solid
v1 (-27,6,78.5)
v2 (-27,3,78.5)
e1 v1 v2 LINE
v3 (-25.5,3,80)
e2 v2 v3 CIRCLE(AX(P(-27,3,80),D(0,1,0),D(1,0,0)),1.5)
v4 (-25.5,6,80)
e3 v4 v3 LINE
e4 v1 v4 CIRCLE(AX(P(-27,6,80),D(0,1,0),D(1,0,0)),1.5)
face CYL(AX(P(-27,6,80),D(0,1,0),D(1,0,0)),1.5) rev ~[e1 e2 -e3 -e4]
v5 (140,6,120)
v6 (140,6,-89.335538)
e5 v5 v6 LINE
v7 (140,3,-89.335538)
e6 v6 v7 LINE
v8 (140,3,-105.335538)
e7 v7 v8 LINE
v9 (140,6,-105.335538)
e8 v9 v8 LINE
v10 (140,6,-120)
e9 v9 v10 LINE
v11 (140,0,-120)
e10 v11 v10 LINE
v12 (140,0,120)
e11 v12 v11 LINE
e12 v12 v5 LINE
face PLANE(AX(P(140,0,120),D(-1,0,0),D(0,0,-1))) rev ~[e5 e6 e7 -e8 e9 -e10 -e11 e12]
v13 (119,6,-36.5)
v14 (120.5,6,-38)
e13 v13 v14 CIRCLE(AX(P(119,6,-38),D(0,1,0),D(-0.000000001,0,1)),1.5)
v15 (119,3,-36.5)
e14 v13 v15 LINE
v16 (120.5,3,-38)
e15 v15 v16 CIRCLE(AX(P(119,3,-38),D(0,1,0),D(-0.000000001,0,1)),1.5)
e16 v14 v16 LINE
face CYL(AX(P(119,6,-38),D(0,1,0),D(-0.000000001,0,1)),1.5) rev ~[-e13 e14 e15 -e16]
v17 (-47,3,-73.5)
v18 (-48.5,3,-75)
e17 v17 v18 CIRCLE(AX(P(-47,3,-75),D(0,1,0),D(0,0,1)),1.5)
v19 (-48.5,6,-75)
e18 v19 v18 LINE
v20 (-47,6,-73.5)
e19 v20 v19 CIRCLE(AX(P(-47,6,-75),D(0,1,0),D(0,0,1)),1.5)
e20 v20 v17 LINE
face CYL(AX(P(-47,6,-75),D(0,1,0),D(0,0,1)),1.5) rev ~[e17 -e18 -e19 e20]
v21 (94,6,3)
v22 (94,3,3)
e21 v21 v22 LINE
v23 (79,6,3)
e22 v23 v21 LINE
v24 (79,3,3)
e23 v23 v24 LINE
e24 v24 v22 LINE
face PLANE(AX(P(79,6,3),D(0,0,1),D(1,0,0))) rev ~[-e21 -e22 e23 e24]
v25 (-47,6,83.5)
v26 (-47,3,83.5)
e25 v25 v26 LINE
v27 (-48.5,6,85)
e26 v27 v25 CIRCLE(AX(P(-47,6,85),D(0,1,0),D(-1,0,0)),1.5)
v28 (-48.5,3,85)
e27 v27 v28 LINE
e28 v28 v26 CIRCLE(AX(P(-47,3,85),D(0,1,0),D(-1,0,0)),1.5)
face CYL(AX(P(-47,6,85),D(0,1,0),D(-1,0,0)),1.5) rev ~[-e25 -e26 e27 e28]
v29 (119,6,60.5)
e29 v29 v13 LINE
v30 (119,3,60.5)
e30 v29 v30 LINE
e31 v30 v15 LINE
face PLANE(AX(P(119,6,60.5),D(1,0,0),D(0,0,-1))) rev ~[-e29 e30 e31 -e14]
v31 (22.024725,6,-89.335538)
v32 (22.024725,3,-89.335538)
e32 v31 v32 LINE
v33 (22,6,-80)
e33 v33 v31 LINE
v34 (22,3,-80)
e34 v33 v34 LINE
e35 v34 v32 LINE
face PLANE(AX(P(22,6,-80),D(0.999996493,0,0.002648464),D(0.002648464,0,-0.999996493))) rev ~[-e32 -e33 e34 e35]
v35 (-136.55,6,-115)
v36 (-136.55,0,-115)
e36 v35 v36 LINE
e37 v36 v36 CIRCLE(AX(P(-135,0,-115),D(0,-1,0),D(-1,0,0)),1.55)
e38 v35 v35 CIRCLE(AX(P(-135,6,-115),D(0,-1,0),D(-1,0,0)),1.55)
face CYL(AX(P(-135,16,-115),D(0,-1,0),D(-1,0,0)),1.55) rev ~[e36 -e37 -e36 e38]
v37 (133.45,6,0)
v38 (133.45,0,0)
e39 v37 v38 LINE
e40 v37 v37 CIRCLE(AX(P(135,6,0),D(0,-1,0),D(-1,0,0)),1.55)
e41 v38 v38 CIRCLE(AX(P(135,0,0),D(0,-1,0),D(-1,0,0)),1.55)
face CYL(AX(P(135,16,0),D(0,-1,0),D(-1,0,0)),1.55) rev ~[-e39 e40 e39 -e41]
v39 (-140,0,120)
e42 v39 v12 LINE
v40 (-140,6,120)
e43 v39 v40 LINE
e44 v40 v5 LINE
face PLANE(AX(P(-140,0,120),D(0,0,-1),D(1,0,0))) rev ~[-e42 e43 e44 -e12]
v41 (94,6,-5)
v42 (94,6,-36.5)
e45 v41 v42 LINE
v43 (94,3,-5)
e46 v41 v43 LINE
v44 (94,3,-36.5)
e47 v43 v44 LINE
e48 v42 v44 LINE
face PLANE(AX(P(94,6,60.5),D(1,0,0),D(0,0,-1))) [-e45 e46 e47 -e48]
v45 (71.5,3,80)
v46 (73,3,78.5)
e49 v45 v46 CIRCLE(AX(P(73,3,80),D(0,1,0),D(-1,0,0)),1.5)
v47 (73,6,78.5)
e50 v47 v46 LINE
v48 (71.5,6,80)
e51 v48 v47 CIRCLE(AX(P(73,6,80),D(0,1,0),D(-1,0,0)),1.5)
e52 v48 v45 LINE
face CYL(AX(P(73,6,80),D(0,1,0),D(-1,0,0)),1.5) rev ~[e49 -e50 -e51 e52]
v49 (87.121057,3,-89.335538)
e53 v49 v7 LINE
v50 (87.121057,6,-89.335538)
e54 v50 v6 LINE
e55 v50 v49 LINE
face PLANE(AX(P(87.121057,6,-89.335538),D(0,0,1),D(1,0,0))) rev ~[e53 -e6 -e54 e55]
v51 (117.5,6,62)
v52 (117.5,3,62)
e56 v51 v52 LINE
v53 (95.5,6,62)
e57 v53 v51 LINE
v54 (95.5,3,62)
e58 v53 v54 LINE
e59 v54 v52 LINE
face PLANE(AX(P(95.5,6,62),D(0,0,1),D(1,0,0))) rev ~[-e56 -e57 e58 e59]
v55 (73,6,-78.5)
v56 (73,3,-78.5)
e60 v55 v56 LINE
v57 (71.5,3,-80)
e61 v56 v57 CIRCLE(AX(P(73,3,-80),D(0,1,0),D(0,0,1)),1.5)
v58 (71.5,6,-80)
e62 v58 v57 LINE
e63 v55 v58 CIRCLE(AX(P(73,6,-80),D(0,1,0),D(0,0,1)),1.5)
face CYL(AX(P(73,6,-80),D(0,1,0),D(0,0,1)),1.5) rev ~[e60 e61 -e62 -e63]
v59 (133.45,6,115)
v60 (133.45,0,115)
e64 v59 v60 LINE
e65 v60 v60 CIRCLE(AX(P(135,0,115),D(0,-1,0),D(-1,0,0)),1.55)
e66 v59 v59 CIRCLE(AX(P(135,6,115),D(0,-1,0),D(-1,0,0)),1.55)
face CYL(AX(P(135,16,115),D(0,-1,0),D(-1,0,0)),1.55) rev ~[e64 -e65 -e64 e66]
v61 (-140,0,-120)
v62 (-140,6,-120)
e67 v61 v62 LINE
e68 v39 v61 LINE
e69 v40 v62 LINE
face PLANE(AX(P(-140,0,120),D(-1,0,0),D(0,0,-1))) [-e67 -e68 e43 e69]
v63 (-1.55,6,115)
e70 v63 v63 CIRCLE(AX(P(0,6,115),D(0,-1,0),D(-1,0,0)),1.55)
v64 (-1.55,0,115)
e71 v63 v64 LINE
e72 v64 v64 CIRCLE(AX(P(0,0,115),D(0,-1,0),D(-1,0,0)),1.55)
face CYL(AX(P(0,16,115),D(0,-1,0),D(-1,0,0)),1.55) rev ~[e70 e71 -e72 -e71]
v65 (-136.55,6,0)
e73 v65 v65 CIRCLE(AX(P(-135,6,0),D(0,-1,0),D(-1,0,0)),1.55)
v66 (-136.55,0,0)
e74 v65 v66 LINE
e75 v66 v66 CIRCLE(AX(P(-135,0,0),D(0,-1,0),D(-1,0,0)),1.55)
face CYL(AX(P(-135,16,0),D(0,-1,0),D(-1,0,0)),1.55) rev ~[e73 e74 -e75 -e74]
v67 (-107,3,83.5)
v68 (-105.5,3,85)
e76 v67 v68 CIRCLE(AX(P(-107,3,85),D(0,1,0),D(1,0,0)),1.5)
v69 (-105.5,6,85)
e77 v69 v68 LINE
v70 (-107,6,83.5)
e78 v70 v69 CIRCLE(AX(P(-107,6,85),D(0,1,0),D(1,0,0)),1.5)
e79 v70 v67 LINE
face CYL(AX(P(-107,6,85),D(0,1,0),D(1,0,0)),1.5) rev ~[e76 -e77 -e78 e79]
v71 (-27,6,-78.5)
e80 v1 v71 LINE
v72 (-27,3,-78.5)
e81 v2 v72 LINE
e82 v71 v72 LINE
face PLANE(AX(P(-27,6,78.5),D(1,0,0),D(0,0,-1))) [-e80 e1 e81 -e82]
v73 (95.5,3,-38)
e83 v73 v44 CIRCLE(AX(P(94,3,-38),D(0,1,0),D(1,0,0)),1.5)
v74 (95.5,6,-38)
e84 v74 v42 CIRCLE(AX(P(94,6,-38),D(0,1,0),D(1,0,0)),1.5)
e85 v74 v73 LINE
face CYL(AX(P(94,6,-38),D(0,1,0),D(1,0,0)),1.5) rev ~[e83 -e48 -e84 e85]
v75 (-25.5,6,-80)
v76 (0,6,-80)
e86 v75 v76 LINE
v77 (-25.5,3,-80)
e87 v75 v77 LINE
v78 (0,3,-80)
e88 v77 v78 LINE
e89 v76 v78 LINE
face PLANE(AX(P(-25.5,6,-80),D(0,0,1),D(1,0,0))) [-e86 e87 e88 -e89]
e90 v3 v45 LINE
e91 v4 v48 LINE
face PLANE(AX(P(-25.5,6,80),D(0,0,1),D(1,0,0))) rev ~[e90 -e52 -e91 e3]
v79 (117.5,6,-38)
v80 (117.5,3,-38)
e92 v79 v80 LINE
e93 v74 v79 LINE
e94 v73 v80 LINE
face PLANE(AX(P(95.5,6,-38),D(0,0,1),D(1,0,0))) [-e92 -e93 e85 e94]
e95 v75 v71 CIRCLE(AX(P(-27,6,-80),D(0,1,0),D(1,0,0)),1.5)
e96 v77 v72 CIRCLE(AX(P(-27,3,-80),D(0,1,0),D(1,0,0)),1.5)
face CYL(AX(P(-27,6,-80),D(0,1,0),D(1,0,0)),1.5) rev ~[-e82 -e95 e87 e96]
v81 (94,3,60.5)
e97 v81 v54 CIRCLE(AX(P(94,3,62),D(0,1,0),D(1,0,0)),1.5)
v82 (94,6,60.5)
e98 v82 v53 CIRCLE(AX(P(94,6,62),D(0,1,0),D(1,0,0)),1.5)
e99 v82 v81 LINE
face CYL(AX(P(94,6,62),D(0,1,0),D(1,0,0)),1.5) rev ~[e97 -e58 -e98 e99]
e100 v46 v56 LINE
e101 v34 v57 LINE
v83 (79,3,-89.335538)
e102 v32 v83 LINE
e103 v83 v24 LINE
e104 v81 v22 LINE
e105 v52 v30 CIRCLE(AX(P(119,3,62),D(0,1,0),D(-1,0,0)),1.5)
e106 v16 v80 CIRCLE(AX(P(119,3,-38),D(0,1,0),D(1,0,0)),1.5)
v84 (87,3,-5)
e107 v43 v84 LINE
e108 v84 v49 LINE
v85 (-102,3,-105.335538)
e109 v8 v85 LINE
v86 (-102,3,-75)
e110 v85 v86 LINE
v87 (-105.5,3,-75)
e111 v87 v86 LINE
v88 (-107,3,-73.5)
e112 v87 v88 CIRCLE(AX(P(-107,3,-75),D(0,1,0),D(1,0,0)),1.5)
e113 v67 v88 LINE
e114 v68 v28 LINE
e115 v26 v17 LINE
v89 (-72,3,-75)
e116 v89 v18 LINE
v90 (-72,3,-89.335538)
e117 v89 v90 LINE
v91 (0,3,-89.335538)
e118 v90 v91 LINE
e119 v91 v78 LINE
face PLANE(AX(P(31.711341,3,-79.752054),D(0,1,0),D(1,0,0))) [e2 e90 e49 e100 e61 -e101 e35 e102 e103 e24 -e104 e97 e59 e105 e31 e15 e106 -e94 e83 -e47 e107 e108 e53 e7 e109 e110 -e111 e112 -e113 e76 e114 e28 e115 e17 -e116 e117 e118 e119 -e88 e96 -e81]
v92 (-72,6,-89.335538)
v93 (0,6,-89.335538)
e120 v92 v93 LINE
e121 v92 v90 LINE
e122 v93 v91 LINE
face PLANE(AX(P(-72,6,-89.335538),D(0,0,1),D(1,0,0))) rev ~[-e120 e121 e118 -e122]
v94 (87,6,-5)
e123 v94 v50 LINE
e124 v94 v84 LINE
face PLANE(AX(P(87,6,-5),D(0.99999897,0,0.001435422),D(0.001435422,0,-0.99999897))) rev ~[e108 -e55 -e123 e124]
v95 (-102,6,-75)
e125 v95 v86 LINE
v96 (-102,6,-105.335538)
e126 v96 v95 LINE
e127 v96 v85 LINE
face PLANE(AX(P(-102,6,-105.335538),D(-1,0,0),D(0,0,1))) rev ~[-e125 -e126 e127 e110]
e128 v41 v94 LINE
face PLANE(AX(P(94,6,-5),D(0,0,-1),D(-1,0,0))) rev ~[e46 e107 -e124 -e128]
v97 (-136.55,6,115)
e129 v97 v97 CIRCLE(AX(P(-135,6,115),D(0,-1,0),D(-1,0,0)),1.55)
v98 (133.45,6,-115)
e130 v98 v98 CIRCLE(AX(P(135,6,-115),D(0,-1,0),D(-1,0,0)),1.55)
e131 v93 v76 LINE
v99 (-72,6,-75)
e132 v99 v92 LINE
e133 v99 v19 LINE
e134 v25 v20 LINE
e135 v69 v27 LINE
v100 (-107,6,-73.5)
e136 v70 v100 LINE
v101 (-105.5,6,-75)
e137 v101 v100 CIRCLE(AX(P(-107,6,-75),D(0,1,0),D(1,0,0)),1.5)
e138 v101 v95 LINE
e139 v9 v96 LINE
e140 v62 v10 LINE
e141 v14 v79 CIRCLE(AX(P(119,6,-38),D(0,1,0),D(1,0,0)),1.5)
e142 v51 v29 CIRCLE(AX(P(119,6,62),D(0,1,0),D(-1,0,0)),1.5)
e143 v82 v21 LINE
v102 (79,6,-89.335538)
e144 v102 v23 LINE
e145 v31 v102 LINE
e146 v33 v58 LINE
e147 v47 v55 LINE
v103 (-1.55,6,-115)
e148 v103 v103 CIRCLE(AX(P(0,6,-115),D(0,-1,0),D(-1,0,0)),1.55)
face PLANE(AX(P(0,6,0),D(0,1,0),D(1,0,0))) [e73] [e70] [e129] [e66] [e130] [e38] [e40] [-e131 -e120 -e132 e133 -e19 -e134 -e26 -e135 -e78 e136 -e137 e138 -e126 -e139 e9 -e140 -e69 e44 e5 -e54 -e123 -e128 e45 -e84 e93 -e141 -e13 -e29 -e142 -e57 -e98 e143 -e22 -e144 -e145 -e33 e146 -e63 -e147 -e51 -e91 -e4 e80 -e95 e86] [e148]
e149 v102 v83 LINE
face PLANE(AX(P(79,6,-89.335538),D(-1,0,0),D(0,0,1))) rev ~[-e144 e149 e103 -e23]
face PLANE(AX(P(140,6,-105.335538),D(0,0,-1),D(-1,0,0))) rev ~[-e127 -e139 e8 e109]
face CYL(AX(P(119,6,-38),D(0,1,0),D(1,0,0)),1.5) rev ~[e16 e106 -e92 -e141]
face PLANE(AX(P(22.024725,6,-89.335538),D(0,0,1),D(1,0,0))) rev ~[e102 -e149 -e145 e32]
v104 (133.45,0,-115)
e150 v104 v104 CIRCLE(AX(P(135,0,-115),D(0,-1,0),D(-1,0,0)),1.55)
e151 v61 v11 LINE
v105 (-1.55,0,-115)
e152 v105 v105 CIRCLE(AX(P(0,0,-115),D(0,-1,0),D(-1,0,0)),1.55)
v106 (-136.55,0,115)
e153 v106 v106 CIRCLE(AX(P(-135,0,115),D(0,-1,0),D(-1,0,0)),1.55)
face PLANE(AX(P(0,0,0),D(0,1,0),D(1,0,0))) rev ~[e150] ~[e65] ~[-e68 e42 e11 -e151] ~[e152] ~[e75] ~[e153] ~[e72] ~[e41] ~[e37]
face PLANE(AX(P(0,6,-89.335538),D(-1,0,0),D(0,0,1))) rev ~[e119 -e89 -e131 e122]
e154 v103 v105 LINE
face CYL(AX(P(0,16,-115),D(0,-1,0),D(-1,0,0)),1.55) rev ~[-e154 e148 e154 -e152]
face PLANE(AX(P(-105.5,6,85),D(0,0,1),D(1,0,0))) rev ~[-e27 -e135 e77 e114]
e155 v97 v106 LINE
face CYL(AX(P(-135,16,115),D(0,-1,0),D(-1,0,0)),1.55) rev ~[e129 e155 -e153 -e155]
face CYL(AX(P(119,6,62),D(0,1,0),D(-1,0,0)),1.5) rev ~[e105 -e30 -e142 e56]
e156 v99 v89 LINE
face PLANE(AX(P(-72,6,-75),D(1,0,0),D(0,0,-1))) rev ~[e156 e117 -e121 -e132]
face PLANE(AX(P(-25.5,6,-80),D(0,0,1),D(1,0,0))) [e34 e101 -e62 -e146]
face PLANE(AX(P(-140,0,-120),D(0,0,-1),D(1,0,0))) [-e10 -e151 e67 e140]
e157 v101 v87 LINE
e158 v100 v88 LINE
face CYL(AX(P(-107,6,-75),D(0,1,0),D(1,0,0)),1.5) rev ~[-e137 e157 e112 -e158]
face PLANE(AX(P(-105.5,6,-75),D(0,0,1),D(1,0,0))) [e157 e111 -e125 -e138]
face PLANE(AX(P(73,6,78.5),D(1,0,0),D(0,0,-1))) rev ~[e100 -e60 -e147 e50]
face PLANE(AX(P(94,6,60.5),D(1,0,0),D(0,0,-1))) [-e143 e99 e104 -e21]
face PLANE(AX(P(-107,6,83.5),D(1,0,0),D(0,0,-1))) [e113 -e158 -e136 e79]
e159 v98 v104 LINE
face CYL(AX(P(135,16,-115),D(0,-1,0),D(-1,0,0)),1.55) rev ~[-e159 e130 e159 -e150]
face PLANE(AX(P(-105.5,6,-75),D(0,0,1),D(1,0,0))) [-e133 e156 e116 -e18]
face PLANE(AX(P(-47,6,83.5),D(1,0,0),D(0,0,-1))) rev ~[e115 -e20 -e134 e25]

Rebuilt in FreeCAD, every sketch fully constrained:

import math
import FreeCAD as App
import Part
import Sketcher

V = App.Vector
Q = App.Units.Quantity


def add_polygon(sketch, points):
    """Adds a closed chain of lines whose ends are joined by coincident constraints."""
    first, n = sketch.GeometryCount, len(points)
    for a, b in zip(points, points[1:] + points[:1]):
        sketch.addGeometry(Part.LineSegment(App.Vector(*a, 0), App.Vector(*b, 0)), False)
    for i in range(n):
        sketch.addConstraint(Sketcher.Constraint("Coincident", first + i, 2, first + (i + 1) % n, 1))

doc = App.newDocument("Part")
body = doc.addObject("PartDesign::Body", "Body")

sketch1 = doc.addObject("Sketcher::SketchObject", "Sketch")
body.addObject(sketch1)
sketch1.AttachmentSupport = (doc.XZ_Plane, [""])
sketch1.MapMode = "FlatFace"
add_polygon(sketch1, [(-140, -120), (-140, 120), (140, 120), (140, -120)])
sketch1.addConstraint(Sketcher.Constraint("Vertical", 0))
sketch1.addConstraint(Sketcher.Constraint("Horizontal", 1))
sketch1.addConstraint(Sketcher.Constraint("Vertical", 2))
sketch1.addConstraint(Sketcher.Constraint("Horizontal", 3))
sketch1.addConstraint(Sketcher.Constraint("Symmetric", 0, 2, 2, 2, -1, 1))
sketch1.addConstraint(Sketcher.Constraint("DistanceX", 1, 1, 1, 2, Q("280 mm")))
sketch1.addConstraint(Sketcher.Constraint("DistanceY", 0, 1, 0, 2, Q("240 mm")))
pad1 = doc.addObject("PartDesign::Pad", "Pad")
body.addObject(pad1)
pad1.Profile = sketch1
pad1.Length = 6
pad1.Reversed = True

sketch2 = doc.addObject("Sketcher::SketchObject", "Sketch001")
body.addObject(sketch2)
sketch2.AttachmentSupport = (doc.XZ_Plane, [""])
sketch2.MapMode = "FlatFace"
sketch2.AttachmentOffset = App.Placement(V(0, 0, -6), App.Rotation())
sketch2.addGeometry(Part.Circle(V(-135, -115, 0), V(0, 0, 1), 1.6), False)
sketch2.addGeometry(Part.Circle(V(0, -115, 0), V(0, 0, 1), 1.6), False)
sketch2.addGeometry(Part.Circle(V(135, -115, 0), V(0, 0, 1), 1.6), False)
sketch2.addGeometry(Part.Circle(V(135, 0, 0), V(0, 0, 1), 1.6), False)
sketch2.addGeometry(Part.Circle(V(135, 115, 0), V(0, 0, 1), 1.6), False)
sketch2.addGeometry(Part.Circle(V(0, 115, 0), V(0, 0, 1), 1.6), False)
sketch2.addGeometry(Part.Circle(V(-135, 115, 0), V(0, 0, 1), 1.6), False)
sketch2.addGeometry(Part.Circle(V(-135, 0, 0), V(0, 0, 1), 1.6), False)
sketch2.addGeometry(Part.Circle(V(401.5, -111, 0), V(0, 0, 1), 1.6), False)
sketch2.addConstraint(Sketcher.Constraint("Equal", 0, 1))
sketch2.addConstraint(Sketcher.Constraint("Equal", 1, 2))
sketch2.addConstraint(Sketcher.Constraint("Equal", 2, 3))
sketch2.addConstraint(Sketcher.Constraint("Equal", 3, 4))
sketch2.addConstraint(Sketcher.Constraint("Equal", 4, 5))
sketch2.addConstraint(Sketcher.Constraint("Equal", 5, 6))
sketch2.addConstraint(Sketcher.Constraint("Equal", 6, 7))
sketch2.addConstraint(Sketcher.Constraint("Equal", 7, 8))
sketch2.addConstraint(Sketcher.Constraint("Symmetric", 0, 3, 4, 3, -1, 1))
sketch2.addConstraint(Sketcher.Constraint("Symmetric", 1, 3, 5, 3, -1, 1))
sketch2.addConstraint(Sketcher.Constraint("Symmetric", 2, 3, 6, 3, -1, 1))
sketch2.addConstraint(Sketcher.Constraint("Symmetric", 3, 3, 7, 3, -1, 1))
sketch2.addConstraint(Sketcher.Constraint("Symmetric", 0, 3, 2, 3, -2))
sketch2.addConstraint(Sketcher.Constraint("PointOnObject", 1, 3, -2))
sketch2.addConstraint(Sketcher.Constraint("PointOnObject", 3, 3, -1))
sketch2.addConstraint(Sketcher.Constraint("Horizontal", 0, 3, 1, 3))
sketch2.addConstraint(Sketcher.Constraint("Vertical", 2, 3, 3, 3))
sketch2.addConstraint(Sketcher.Constraint("Diameter", 0, Q("3.1 mm")))
sketch2.addConstraint(Sketcher.Constraint("DistanceX", 0, 3, -1, 1, Q("135 mm")))
sketch2.addConstraint(Sketcher.Constraint("DistanceY", 0, 3, -1, 1, Q("115 mm")))
sketch2.addConstraint(Sketcher.Constraint("DistanceX", -1, 1, 8, 3, Q("401.523177 mm")))
sketch2.addConstraint(Sketcher.Constraint("DistanceY", 8, 3, -1, 1, Q("110.995096 mm")))
doc.recompute()
hole = doc.addObject("PartDesign::Hole", "Hole")
body.addObject(hole)
hole.Profile = sketch2
hole.ThreadType = "None"
hole.Diameter = 3.1
hole.DepthType = "Dimension"
hole.Depth = 10
hole.DrillPoint = "Angled"
hole.DrillPointAngle = 118
hole.Reversed = True

sketch3 = doc.addObject("Sketcher::SketchObject", "Sketch002")
body.addObject(sketch3)
sketch3.AttachmentSupport = (doc.XZ_Plane, [""])
sketch3.MapMode = "FlatFace"
sketch3.AttachmentOffset = App.Placement(V(0, 0, -6), App.Rotation())
sketch3.addGeometry(Part.LineSegment(V(94, -36.5, 0), V(94, 60.5, 0)), False)
sketch3.addGeometry(Part.ArcOfCircle(Part.Circle(V(94, 62, 0), V(0, 0, 1), 1.5), math.radians(0), math.radians(270)), False)
sketch3.addGeometry(Part.LineSegment(V(95.5, 62, 0), V(117.5, 62, 0)), False)
sketch3.addGeometry(Part.ArcOfCircle(Part.Circle(V(119, 62, 0), V(0, 0, 1), 1.5), math.radians(-90), math.radians(180)), False)
sketch3.addGeometry(Part.LineSegment(V(119, 60.5, 0), V(119, -36.5, 0)), False)
sketch3.addGeometry(Part.ArcOfCircle(Part.Circle(V(119, -38, 0), V(0, 0, 1), 1.5), math.radians(0), math.radians(90)), False)
sketch3.addGeometry(Part.ArcOfCircle(Part.Circle(V(119, -38, 0), V(0, 0, 1), 1.5), math.radians(180), math.radians(360)), False)
sketch3.addGeometry(Part.LineSegment(V(117.5, -38, 0), V(95.5, -38, 0)), False)
sketch3.addGeometry(Part.ArcOfCircle(Part.Circle(V(94, -38, 0), V(0, 0, 1), 1.5), math.radians(90), math.radians(360)), False)
sketch3.addGeometry(Part.ArcOfCircle(Part.Circle(V(-27, -80, 0), V(0, 0, 1), 1.5), math.radians(90), math.radians(360)), False)
sketch3.addGeometry(Part.LineSegment(V(-27, -78.5, 0), V(-27, 78.5, 0)), False)
sketch3.addGeometry(Part.ArcOfCircle(Part.Circle(V(-27, 80, 0), V(0, 0, 1), 1.5), math.radians(0), math.radians(270)), False)
sketch3.addGeometry(Part.LineSegment(V(-25.5, 80, 0), V(71.5, 80, 0)), False)
sketch3.addGeometry(Part.ArcOfCircle(Part.Circle(V(73, 80, 0), V(0, 0, 1), 1.5), math.radians(-90), math.radians(180)), False)
sketch3.addGeometry(Part.LineSegment(V(73, 78.5, 0), V(73, -78.5, 0)), False)
sketch3.addGeometry(Part.ArcOfCircle(Part.Circle(V(73, -80, 0), V(0, 0, 1), 1.5), math.radians(180), math.radians(450)), False)
sketch3.addGeometry(Part.LineSegment(V(71.5, -80, 0), V(-25.5, -80, 0)), False)
sketch3.addGeometry(Part.LineSegment(V(-107, -73.5, 0), V(-107, 83.5, 0)), False)
sketch3.addGeometry(Part.ArcOfCircle(Part.Circle(V(-107, 85, 0), V(0, 0, 1), 1.5), math.radians(0), math.radians(270)), False)
sketch3.addGeometry(Part.LineSegment(V(-105.5, 85, 0), V(-48.5, 85, 0)), False)
sketch3.addGeometry(Part.ArcOfCircle(Part.Circle(V(-47, 85, 0), V(0, 0, 1), 1.5), math.radians(-90), math.radians(180)), False)
sketch3.addGeometry(Part.LineSegment(V(-47, 83.5, 0), V(-47, -73.5, 0)), False)
sketch3.addGeometry(Part.ArcOfCircle(Part.Circle(V(-47, -75, 0), V(0, 0, 1), 1.5), math.radians(180), math.radians(450)), False)
sketch3.addGeometry(Part.LineSegment(V(-48.5, -75, 0), V(-105.5, -75, 0)), False)
sketch3.addGeometry(Part.ArcOfCircle(Part.Circle(V(-107, -75, 0), V(0, 0, 1), 1.5), math.radians(90), math.radians(360)), False)
sketch3.addConstraint(Sketcher.Constraint("Coincident", 0, 2, 1, 2))
sketch3.addConstraint(Sketcher.Constraint("Coincident", 1, 1, 2, 1))
sketch3.addConstraint(Sketcher.Constraint("Coincident", 2, 2, 3, 2))
sketch3.addConstraint(Sketcher.Constraint("Coincident", 3, 1, 4, 1))
sketch3.addConstraint(Sketcher.Constraint("Coincident", 4, 2, 5, 2))
sketch3.addConstraint(Sketcher.Constraint("Tangent", 5, 1, 6, 2))
sketch3.addConstraint(Sketcher.Constraint("Coincident", 6, 1, 7, 1))
sketch3.addConstraint(Sketcher.Constraint("Coincident", 7, 2, 8, 2))
sketch3.addConstraint(Sketcher.Constraint("Coincident", 8, 1, 0, 1))
sketch3.addConstraint(Sketcher.Constraint("Coincident", 9, 1, 10, 1))
sketch3.addConstraint(Sketcher.Constraint("Coincident", 10, 2, 11, 2))
sketch3.addConstraint(Sketcher.Constraint("Coincident", 11, 1, 12, 1))
sketch3.addConstraint(Sketcher.Constraint("Coincident", 12, 2, 13, 2))
sketch3.addConstraint(Sketcher.Constraint("Coincident", 13, 1, 14, 1))
sketch3.addConstraint(Sketcher.Constraint("Coincident", 14, 2, 15, 2))
sketch3.addConstraint(Sketcher.Constraint("Coincident", 15, 1, 16, 1))
sketch3.addConstraint(Sketcher.Constraint("Coincident", 16, 2, 9, 2))
sketch3.addConstraint(Sketcher.Constraint("Coincident", 17, 2, 18, 2))
sketch3.addConstraint(Sketcher.Constraint("Coincident", 18, 1, 19, 1))
sketch3.addConstraint(Sketcher.Constraint("Coincident", 19, 2, 20, 2))
sketch3.addConstraint(Sketcher.Constraint("Coincident", 20, 1, 21, 1))
sketch3.addConstraint(Sketcher.Constraint("Coincident", 21, 2, 22, 2))
sketch3.addConstraint(Sketcher.Constraint("Coincident", 22, 1, 23, 1))
sketch3.addConstraint(Sketcher.Constraint("Coincident", 23, 2, 24, 2))
sketch3.addConstraint(Sketcher.Constraint("Coincident", 24, 1, 17, 1))
sketch3.addConstraint(Sketcher.Constraint("Vertical", 0))
sketch3.addConstraint(Sketcher.Constraint("Horizontal", 2))
sketch3.addConstraint(Sketcher.Constraint("Vertical", 4))
sketch3.addConstraint(Sketcher.Constraint("Horizontal", 7))
sketch3.addConstraint(Sketcher.Constraint("Vertical", 10))
sketch3.addConstraint(Sketcher.Constraint("Horizontal", 12))
sketch3.addConstraint(Sketcher.Constraint("Vertical", 14))
sketch3.addConstraint(Sketcher.Constraint("Horizontal", 16))
sketch3.addConstraint(Sketcher.Constraint("Vertical", 17))
sketch3.addConstraint(Sketcher.Constraint("Horizontal", 19))
sketch3.addConstraint(Sketcher.Constraint("Vertical", 21))
sketch3.addConstraint(Sketcher.Constraint("Horizontal", 23))
sketch3.addConstraint(Sketcher.Constraint("Equal", 1, 3))
sketch3.addConstraint(Sketcher.Constraint("Equal", 3, 5))
sketch3.addConstraint(Sketcher.Constraint("Equal", 5, 6))
sketch3.addConstraint(Sketcher.Constraint("Equal", 6, 8))
sketch3.addConstraint(Sketcher.Constraint("Equal", 8, 9))
sketch3.addConstraint(Sketcher.Constraint("Equal", 9, 11))
sketch3.addConstraint(Sketcher.Constraint("Equal", 11, 13))
sketch3.addConstraint(Sketcher.Constraint("Equal", 13, 15))
sketch3.addConstraint(Sketcher.Constraint("Equal", 15, 18))
sketch3.addConstraint(Sketcher.Constraint("Equal", 18, 20))
sketch3.addConstraint(Sketcher.Constraint("Equal", 20, 22))
sketch3.addConstraint(Sketcher.Constraint("Equal", 22, 24))
sketch3.addConstraint(Sketcher.Constraint("Symmetric", 9, 3, 11, 3, -1))
sketch3.addConstraint(Sketcher.Constraint("Symmetric", 13, 3, 15, 3, -1))
sketch3.addConstraint(Sketcher.Constraint("Horizontal", 1, 3, 3, 3))
sketch3.addConstraint(Sketcher.Constraint("Horizontal", 6, 3, 8, 3))
sketch3.addConstraint(Sketcher.Constraint("Horizontal", 11, 3, 13, 3))
sketch3.addConstraint(Sketcher.Constraint("Horizontal", 18, 3, 20, 3))
sketch3.addConstraint(Sketcher.Constraint("Horizontal", 22, 3, 24, 3))
sketch3.addConstraint(Sketcher.Constraint("Horizontal", 3, 3, 1, 1))
sketch3.addConstraint(Sketcher.Constraint("Horizontal", 8, 3, 5, 1))
sketch3.addConstraint(Sketcher.Constraint("Horizontal", 5, 1, 6, 1))
sketch3.addConstraint(Sketcher.Constraint("Horizontal", 13, 3, 11, 1))
sketch3.addConstraint(Sketcher.Constraint("Horizontal", 9, 3, 15, 1))
sketch3.addConstraint(Sketcher.Constraint("Horizontal", 20, 3, 18, 1))
sketch3.addConstraint(Sketcher.Constraint("Horizontal", 24, 3, 22, 1))
sketch3.addConstraint(Sketcher.Constraint("Vertical", 3, 3, 5, 3))
sketch3.addConstraint(Sketcher.Constraint("Vertical", 1, 3, 8, 3))
sketch3.addConstraint(Sketcher.Constraint("Vertical", 20, 3, 22, 3))
sketch3.addConstraint(Sketcher.Constraint("Vertical", 18, 3, 24, 3))
sketch3.addConstraint(Sketcher.Constraint("Vertical", 8, 3, 0, 2))
sketch3.addConstraint(Sketcher.Constraint("Vertical", 6, 3, 3, 1))
sketch3.addConstraint(Sketcher.Constraint("Vertical", 11, 3, 9, 1))
sketch3.addConstraint(Sketcher.Constraint("Vertical", 15, 3, 13, 1))
sketch3.addConstraint(Sketcher.Constraint("Vertical", 24, 3, 17, 2))
sketch3.addConstraint(Sketcher.Constraint("Vertical", 22, 3, 20, 1))
sketch3.addConstraint(Sketcher.Constraint("Equal", 16, 0))
sketch3.addConstraint(Sketcher.Constraint("Equal", 14, 17))
sketch3.addConstraint(Sketcher.Constraint("Radius", 1, Q("1.5 mm")))
sketch3.addConstraint(Sketcher.Constraint("DistanceX", 2, 1, 2, 2, Q("22 mm")))
sketch3.addConstraint(Sketcher.Constraint("DistanceX", 12, 1, 12, 2, Q("97 mm")))
sketch3.addConstraint(Sketcher.Constraint("DistanceX", 19, 1, 19, 2, Q("57 mm")))
sketch3.addConstraint(Sketcher.Constraint("DistanceY", 10, 1, 10, 2, Q("157 mm")))
sketch3.addConstraint(Sketcher.Constraint("DistanceX", -1, 1, 1, 3, Q("94 mm")))
sketch3.addConstraint(Sketcher.Constraint("DistanceY", -1, 1, 1, 3, Q("62 mm")))
sketch3.addConstraint(Sketcher.Constraint("DistanceX", 9, 3, -1, 1, Q("27 mm")))
sketch3.addConstraint(Sketcher.Constraint("DistanceX", 18, 3, -1, 1, Q("107 mm")))
sketch3.addConstraint(Sketcher.Constraint("DistanceY", -1, 1, 18, 3, Q("85 mm")))
pocket1 = doc.addObject("PartDesign::Pocket", "Pocket")
body.addObject(pocket1)
pocket1.Profile = sketch3
pocket1.Length = 3
pocket1.Reversed = True

sketch4 = doc.addObject("Sketcher::SketchObject", "Sketch003")
body.addObject(sketch4)
sketch4.AttachmentSupport = (doc.XZ_Plane, [""])
sketch4.MapMode = "FlatFace"
sketch4.AttachmentOffset = App.Placement(V(0, 0, -6), App.Rotation())
add_polygon(sketch4, [(87, -89), (140, -89), (140, -105), (-102, -105), (-102, -75), (-72, -75), (-72, -89), (0, -89), (0, -80), (22, -80), (22, -89), (79, -89), (79, 3), (94, 3), (94, -5), (87, -5)])
sketch4.addConstraint(Sketcher.Constraint("Horizontal", 0))
sketch4.addConstraint(Sketcher.Constraint("Vertical", 1))
sketch4.addConstraint(Sketcher.Constraint("Horizontal", 2))
sketch4.addConstraint(Sketcher.Constraint("Vertical", 3))
sketch4.addConstraint(Sketcher.Constraint("Horizontal", 4))
sketch4.addConstraint(Sketcher.Constraint("Vertical", 5))
sketch4.addConstraint(Sketcher.Constraint("Horizontal", 6))
sketch4.addConstraint(Sketcher.Constraint("Vertical", 7))
sketch4.addConstraint(Sketcher.Constraint("Horizontal", 8))
sketch4.addConstraint(Sketcher.Constraint("Horizontal", 10))
sketch4.addConstraint(Sketcher.Constraint("Vertical", 11))
sketch4.addConstraint(Sketcher.Constraint("Horizontal", 12))
sketch4.addConstraint(Sketcher.Constraint("Vertical", 13))
sketch4.addConstraint(Sketcher.Constraint("Horizontal", 14))
sketch4.addConstraint(Sketcher.Constraint("PointOnObject", 6, 2, -2))
sketch4.addConstraint(Sketcher.Constraint("Horizontal", 0, 2, 5, 2))
sketch4.addConstraint(Sketcher.Constraint("Horizontal", 6, 2, 9, 2))
sketch4.addConstraint(Sketcher.Constraint("DistanceX", 2, 2, 2, 1, Q("242 mm")))
sketch4.addConstraint(Sketcher.Constraint("DistanceX", 4, 1, 4, 2, Q("30 mm")))
sketch4.addConstraint(Sketcher.Constraint("DistanceX", 6, 1, 6, 2, Q("72 mm")))
sketch4.addConstraint(Sketcher.Constraint("DistanceX", 8, 1, 8, 2, Q("22 mm")))
sketch4.addConstraint(Sketcher.Constraint("DistanceX", 12, 1, 12, 2, Q("15 mm")))
sketch4.addConstraint(Sketcher.Constraint("DistanceX", 14, 2, 14, 1, Q("7 mm")))
sketch4.addConstraint(Sketcher.Constraint("DistanceY", 1, 2, 1, 1, Q("16 mm")))
sketch4.addConstraint(Sketcher.Constraint("DistanceY", 13, 2, 13, 1, Q("8 mm")))
sketch4.addConstraint(Sketcher.Constraint("DistanceY", 3, 2, -1, 1, Q("75 mm")))
sketch4.addConstraint(Sketcher.Constraint("DistanceY", 7, 2, -1, 1, Q("80 mm")))
sketch4.addConstraint(Sketcher.Constraint("DistanceX", -1, 1, 10, 2, Q("79 mm")))
sketch4.addConstraint(Sketcher.Constraint("DistanceY", -1, 1, 11, 2, Q("3 mm")))
sketch4.addConstraint(Sketcher.Constraint("Distance", 9, Q("9.33557 mm")))
sketch4.addConstraint(Sketcher.Constraint("DistanceX", 0, 1, 0, 2, Q("52.878943 mm")))
sketch4.addConstraint(Sketcher.Constraint("DistanceX", 10, 1, 10, 2, Q("56.975275 mm")))
pocket2 = doc.addObject("PartDesign::Pocket", "Pocket001")
body.addObject(pocket2)
pocket2.Profile = sketch4
pocket2.Length = 3
pocket2.Reversed = True

doc.recompute()
